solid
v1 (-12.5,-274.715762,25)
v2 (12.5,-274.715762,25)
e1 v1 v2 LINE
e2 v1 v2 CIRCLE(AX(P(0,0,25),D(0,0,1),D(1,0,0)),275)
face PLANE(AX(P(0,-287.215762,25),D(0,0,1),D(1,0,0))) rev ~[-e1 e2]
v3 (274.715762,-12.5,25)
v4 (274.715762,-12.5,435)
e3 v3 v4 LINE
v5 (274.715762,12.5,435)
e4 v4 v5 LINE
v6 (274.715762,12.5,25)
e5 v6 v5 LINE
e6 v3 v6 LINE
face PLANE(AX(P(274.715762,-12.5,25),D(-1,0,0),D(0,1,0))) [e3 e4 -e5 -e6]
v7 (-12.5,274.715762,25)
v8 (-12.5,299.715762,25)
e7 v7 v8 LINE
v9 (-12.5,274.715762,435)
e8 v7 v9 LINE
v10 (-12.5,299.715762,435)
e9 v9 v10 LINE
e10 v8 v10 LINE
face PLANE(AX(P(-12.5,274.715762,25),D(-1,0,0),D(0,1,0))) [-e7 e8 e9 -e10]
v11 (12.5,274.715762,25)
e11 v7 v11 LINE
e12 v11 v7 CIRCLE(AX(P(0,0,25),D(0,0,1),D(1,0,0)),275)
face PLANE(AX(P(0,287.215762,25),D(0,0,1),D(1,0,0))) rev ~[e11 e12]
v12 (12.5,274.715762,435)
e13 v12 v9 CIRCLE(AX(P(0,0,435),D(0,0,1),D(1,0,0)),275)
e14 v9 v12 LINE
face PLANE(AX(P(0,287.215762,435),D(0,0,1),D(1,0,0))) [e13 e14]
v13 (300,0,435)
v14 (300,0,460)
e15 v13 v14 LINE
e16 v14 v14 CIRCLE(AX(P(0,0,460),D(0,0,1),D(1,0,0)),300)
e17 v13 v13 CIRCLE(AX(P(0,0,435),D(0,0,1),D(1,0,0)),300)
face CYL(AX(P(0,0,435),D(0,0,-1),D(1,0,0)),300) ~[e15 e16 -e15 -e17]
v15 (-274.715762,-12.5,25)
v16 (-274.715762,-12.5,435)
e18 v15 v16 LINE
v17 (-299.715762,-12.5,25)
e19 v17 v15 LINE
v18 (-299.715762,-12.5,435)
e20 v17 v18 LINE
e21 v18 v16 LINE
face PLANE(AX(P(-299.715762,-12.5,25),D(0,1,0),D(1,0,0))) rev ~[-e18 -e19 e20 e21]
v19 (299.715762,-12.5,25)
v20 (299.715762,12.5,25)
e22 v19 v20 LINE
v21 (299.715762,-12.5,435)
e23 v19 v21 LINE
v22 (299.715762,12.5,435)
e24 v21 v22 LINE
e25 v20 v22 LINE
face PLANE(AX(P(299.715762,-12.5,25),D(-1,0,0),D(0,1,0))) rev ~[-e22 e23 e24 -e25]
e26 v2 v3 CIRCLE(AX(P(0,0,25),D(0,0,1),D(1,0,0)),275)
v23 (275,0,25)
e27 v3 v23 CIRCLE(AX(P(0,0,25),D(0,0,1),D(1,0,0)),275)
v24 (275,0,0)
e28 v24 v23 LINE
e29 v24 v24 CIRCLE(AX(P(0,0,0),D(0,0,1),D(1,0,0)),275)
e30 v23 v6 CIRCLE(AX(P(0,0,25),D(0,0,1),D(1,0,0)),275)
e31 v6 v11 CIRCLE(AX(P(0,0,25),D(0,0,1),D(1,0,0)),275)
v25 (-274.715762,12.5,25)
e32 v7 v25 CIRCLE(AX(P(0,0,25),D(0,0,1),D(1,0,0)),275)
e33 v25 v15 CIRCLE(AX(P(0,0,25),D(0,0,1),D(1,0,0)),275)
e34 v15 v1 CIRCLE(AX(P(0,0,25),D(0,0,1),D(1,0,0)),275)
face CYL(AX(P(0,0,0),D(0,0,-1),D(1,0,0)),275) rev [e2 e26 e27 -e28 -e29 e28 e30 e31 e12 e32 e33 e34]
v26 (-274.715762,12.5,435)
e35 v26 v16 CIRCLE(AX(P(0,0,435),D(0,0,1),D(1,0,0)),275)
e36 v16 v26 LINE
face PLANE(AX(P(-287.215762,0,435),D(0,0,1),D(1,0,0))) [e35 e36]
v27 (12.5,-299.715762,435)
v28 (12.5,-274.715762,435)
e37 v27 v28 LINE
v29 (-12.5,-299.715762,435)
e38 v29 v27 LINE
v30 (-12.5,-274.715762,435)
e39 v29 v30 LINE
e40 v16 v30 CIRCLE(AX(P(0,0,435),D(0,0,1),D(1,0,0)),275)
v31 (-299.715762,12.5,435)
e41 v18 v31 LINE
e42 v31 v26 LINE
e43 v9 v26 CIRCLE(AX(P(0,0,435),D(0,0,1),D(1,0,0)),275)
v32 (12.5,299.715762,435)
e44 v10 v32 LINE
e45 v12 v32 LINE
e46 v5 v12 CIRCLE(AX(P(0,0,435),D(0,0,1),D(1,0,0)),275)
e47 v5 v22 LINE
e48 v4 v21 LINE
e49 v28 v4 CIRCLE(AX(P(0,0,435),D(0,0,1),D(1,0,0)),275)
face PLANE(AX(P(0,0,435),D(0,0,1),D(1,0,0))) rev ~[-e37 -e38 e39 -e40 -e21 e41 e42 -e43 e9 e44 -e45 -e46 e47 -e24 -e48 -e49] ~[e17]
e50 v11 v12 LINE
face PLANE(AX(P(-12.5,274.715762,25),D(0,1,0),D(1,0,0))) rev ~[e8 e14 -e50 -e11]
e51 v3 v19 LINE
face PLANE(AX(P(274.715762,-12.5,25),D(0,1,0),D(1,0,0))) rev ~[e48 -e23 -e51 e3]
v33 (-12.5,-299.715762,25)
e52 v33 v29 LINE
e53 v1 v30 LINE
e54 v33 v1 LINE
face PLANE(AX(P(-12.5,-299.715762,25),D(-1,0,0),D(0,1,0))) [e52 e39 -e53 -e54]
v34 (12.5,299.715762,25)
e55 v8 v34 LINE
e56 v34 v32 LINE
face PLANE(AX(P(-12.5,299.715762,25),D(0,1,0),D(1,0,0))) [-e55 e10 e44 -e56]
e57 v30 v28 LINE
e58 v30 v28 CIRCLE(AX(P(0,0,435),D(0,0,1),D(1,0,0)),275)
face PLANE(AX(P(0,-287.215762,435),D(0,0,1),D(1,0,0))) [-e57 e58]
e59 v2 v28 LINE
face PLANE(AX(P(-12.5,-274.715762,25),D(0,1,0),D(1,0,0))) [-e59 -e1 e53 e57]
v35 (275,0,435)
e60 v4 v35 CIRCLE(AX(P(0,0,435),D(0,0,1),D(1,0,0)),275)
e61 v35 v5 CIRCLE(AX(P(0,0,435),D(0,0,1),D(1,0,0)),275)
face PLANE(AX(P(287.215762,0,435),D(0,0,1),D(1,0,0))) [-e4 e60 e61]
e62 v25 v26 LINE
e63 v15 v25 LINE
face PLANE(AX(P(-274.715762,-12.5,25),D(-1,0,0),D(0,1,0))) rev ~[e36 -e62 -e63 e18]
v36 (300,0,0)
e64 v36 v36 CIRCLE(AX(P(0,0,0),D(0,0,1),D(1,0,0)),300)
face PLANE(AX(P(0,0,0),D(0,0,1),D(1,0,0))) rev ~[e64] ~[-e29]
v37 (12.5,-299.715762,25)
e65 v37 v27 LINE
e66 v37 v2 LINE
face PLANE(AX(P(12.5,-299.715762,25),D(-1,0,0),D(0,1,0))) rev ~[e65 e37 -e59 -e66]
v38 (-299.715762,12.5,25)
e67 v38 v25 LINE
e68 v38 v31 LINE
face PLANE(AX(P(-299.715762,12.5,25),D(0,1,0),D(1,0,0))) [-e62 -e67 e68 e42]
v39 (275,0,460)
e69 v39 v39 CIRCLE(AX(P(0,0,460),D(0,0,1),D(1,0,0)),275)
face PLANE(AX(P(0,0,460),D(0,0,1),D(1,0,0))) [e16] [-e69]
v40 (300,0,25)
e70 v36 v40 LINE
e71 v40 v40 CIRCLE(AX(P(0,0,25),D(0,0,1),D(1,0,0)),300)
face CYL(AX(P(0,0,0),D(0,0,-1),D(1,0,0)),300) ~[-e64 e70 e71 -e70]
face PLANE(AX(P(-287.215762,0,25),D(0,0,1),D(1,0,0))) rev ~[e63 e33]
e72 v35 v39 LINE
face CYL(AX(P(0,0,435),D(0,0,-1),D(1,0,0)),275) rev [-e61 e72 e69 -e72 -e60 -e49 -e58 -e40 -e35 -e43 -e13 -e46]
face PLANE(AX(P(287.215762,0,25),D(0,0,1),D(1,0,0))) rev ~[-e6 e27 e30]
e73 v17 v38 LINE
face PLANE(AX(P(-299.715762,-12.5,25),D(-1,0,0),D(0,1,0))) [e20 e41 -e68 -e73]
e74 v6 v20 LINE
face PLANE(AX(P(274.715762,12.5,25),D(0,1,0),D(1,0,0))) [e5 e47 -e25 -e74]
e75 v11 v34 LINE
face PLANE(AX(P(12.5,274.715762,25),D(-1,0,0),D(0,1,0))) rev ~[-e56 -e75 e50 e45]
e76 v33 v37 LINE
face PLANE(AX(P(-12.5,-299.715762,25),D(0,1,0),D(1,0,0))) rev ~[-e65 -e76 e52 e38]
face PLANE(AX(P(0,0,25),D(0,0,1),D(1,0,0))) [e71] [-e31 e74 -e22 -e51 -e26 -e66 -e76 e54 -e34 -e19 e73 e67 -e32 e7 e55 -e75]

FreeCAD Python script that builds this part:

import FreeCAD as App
import Part
import Sketcher
from FreeCAD import Vector

doc = App.newDocument("Part")
body = doc.addObject("PartDesign::Body", "Body")

# Sketch on XY plane
sketch1 = body.newObject("Sketcher::SketchObject", "Sketch")
sketch1.AttachmentSupport = (doc.getObject("XY_Plane"), [""])
sketch1.MapMode = "FlatFace"
sketch1.addGeometry([
    Part.Circle(Vector(0, 0, 0), Vector(0, 0, 1), 300),
    Part.Circle(Vector(0, 0, 0), Vector(0, 0, 1), 275),
], False)
sketch1.addConstraint([
    Sketcher.Constraint("Coincident", 0, 3, -1, 1),
    Sketcher.Constraint("Coincident", 1, 3, -1, 1),
    Sketcher.Constraint("Diameter", 0, 600.0),
    Sketcher.Constraint("Diameter", 1, 550.0),
])
pad1 = body.newObject("PartDesign::Pad", "Pad")
pad1.Profile = sketch1
pad1.Length = 25

# Sketch on XY plane
sketch2 = body.newObject("Sketcher::SketchObject", "Sketch001")
sketch2.AttachmentSupport = (doc.getObject("XY_Plane"), [""])
sketch2.MapMode = "FlatFace"
sketch2.AttachmentOffset = App.Placement(Vector(0, 0, 25), App.Rotation())
sketch2.addGeometry([
    Part.LineSegment(Vector(-12, 300, 0), Vector(-12, 275, 0)),  # 0
    Part.LineSegment(Vector(-12, 275, 0), Vector(12, 275, 0)),  # 1
    Part.LineSegment(Vector(12, 275, 0), Vector(12, 300, 0)),  # 2
    Part.LineSegment(Vector(12, 300, 0), Vector(-12, 300, 0)),  # 3
    Part.LineSegment(Vector(-300, 12, 0), Vector(-300, -12, 0)),  # 4
    Part.LineSegment(Vector(-300, -12, 0), Vector(-275, -12, 0)),  # 5
    Part.LineSegment(Vector(-275, -12, 0), Vector(-275, 12, 0)),  # 6
    Part.LineSegment(Vector(-275, 12, 0), Vector(-300, 12, 0)),  # 7
    Part.LineSegment(Vector(-12, -275, 0), Vector(-12, -300, 0)),  # 8
    Part.LineSegment(Vector(-12, -300, 0), Vector(12, -300, 0)),  # 9
    Part.LineSegment(Vector(12, -300, 0), Vector(12, -275, 0)),  # 10
    Part.LineSegment(Vector(12, -275, 0), Vector(-12, -275, 0)),  # 11
    Part.LineSegment(Vector(275, 12, 0), Vector(275, -12, 0)),  # 12
    Part.LineSegment(Vector(275, -12, 0), Vector(300, -12, 0)),  # 13
    Part.LineSegment(Vector(300, -12, 0), Vector(300, 12, 0)),  # 14
    Part.LineSegment(Vector(300, 12, 0), Vector(275, 12, 0)),  # 15
], False)
sketch2.addConstraint([
    Sketcher.Constraint("Coincident", 0, 2, 1, 1),
    Sketcher.Constraint("Coincident", 1, 2, 2, 1),
    Sketcher.Constraint("Coincident", 2, 2, 3, 1),
    Sketcher.Constraint("Coincident", 3, 2, 0, 1),
    Sketcher.Constraint("Coincident", 4, 2, 5, 1),
    Sketcher.Constraint("Coincident", 5, 2, 6, 1),
    Sketcher.Constraint("Coincident", 6, 2, 7, 1),
    Sketcher.Constraint("Coincident", 7, 2, 4, 1),
    Sketcher.Constraint("Coincident", 8, 2, 9, 1),
    Sketcher.Constraint("Coincident", 9, 2, 10, 1),
    Sketcher.Constraint("Coincident", 10, 2, 11, 1),
    Sketcher.Constraint("Coincident", 11, 2, 8, 1),
    Sketcher.Constraint("Coincident", 12, 2, 13, 1),
    Sketcher.Constraint("Coincident", 13, 2, 14, 1),
    Sketcher.Constraint("Coincident", 14, 2, 15, 1),
    Sketcher.Constraint("Coincident", 15, 2, 12, 1),
    Sketcher.Constraint("Vertical", 0),
    Sketcher.Constraint("Horizontal", 1),
    Sketcher.Constraint("Vertical", 2),
    Sketcher.Constraint("Horizontal", 3),
    Sketcher.Constraint("Vertical", 4),
    Sketcher.Constraint("Horizontal", 5),
    Sketcher.Constraint("Vertical", 6),
    Sketcher.Constraint("Horizontal", 7),
    Sketcher.Constraint("Vertical", 8),
    Sketcher.Constraint("Horizontal", 9),
    Sketcher.Constraint("Vertical", 10),
    Sketcher.Constraint("Horizontal", 11),
    Sketcher.Constraint("Vertical", 12),
    Sketcher.Constraint("Horizontal", 13),
    Sketcher.Constraint("Vertical", 14),
    Sketcher.Constraint("Horizontal", 15),
    Sketcher.Constraint("Symmetric", 2, 2, 8, 2, -1, 1),
    Sketcher.Constraint("Symmetric", 0, 2, 10, 2, -1, 1),
    Sketcher.Constraint("Symmetric", 6, 2, 12, 2, -1, 1),
    Sketcher.Constraint("Symmetric", 4, 2, 14, 2, -1, 1),
    Sketcher.Constraint("Horizontal", 5, 2, 12, 2),
    Sketcher.Constraint("Vertical", 3, 2, 8, 2),
    Sketcher.Constraint("Equal", 3, 5),
    Sketcher.Constraint("Equal", 15, 0),
    Sketcher.Constraint("Equal", 2, 4),
    Sketcher.Constraint("DistanceX", 1, 1, 1, 2, 25.0),
    Sketcher.Constraint("DistanceY", -1, 1, 0, 2, 274.715762),
    Sketcher.Constraint("DistanceX", 4, 2, -1, 1, 299.715762),
])
pad2 = body.newObject("PartDesign::Pad", "Pad001")
pad2.Profile = sketch2
pad2.Length = 410

# Sketch on XY plane
sketch3 = body.newObject("Sketcher::SketchObject", "Sketch002")
sketch3.AttachmentSupport = (doc.getObject("XY_Plane"), [""])
sketch3.MapMode = "FlatFace"
sketch3.AttachmentOffset = App.Placement(Vector(0, 0, 435), App.Rotation())
sketch3.addGeometry([
    Part.Circle(Vector(0, 0, 0), Vector(0, 0, 1), 300),
    Part.Circle(Vector(0, 0, 0), Vector(0, 0, 1), 275),
], False)
sketch3.addConstraint([
    Sketcher.Constraint("Coincident", 0, 3, -1, 1),
    Sketcher.Constraint("Coincident", 1, 3, -1, 1),
    Sketcher.Constraint("Diameter", 0, 600.0),
    Sketcher.Constraint("Diameter", 1, 550.0),
])
pad3 = body.newObject("PartDesign::Pad", "Pad002")
pad3.Profile = sketch3
pad3.Length = 25

doc.recompute()
